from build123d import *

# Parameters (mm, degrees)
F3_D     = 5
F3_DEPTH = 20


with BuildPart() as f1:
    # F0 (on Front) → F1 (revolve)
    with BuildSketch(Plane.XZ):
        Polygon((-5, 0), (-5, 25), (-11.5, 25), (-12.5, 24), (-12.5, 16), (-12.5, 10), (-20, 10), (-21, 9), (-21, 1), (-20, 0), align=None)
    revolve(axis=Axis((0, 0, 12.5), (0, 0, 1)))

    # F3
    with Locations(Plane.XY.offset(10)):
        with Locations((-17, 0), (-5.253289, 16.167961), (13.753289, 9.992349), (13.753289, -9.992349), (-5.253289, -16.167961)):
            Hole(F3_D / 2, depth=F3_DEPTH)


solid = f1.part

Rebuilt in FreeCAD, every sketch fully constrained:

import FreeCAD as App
import Part
import Sketcher

doc = App.newDocument("Part")
body = doc.addObject("PartDesign::Body", "Body")

# Sketch on XZ plane
sketch1 = body.newObject("Sketcher::SketchObject", "Sketch")
sketch1.AttachmentSupport = (doc.getObject("XZ_Plane"), [""])
sketch1.MapMode = "FlatFace"
sketch1.addGeometry(Part.LineSegment(App.Vector(-5, 0, 0), App.Vector(-5, 25, 0)), False)
sketch1.addGeometry(Part.LineSegment(App.Vector(-5, 25, 0), App.Vector(-11.5, 25, 0)), False)
sketch1.addGeometry(Part.LineSegment(App.Vector(-11.5, 25, 0), App.Vector(-12.5, 24, 0)), False)
sketch1.addGeometry(Part.LineSegment(App.Vector(-12.5, 24, 0), App.Vector(-12.5, 10, 0)), False)
sketch1.addGeometry(Part.LineSegment(App.Vector(-12.5, 10, 0), App.Vector(-20, 10, 0)), False)
sketch1.addGeometry(Part.LineSegment(App.Vector(-20, 10, 0), App.Vector(-21, 9, 0)), False)
sketch1.addGeometry(Part.LineSegment(App.Vector(-21, 9, 0), App.Vector(-21, 1, 0)), False)
sketch1.addGeometry(Part.LineSegment(App.Vector(-21, 1, 0), App.Vector(-20, 0, 0)), False)
sketch1.addGeometry(Part.LineSegment(App.Vector(-20, 0, 0), App.Vector(-5, 0, 0)), False)
sketch1.addConstraint(Sketcher.Constraint("Coincident", 0, 2, 1, 1))
sketch1.addConstraint(Sketcher.Constraint("Coincident", 1, 2, 2, 1))
sketch1.addConstraint(Sketcher.Constraint("Coincident", 2, 2, 3, 1))
sketch1.addConstraint(Sketcher.Constraint("Coincident", 3, 2, 4, 1))
sketch1.addConstraint(Sketcher.Constraint("Coincident", 4, 2, 5, 1))
sketch1.addConstraint(Sketcher.Constraint("Coincident", 5, 2, 6, 1))
sketch1.addConstraint(Sketcher.Constraint("Coincident", 6, 2, 7, 1))
sketch1.addConstraint(Sketcher.Constraint("Coincident", 7, 2, 8, 1))
sketch1.addConstraint(Sketcher.Constraint("Coincident", 8, 2, 0, 1))
sketch1.addConstraint(Sketcher.Constraint("Vertical", 0))
sketch1.addConstraint(Sketcher.Constraint("Horizontal", 1))
sketch1.addConstraint(Sketcher.Constraint("Vertical", 3))
sketch1.addConstraint(Sketcher.Constraint("Horizontal", 4))
sketch1.addConstraint(Sketcher.Constraint("Vertical", 6))
sketch1.addConstraint(Sketcher.Constraint("Horizontal", 8))
sketch1.addConstraint(Sketcher.Constraint("PointOnObject", 7, 2, -1))
sketch1.addConstraint(Sketcher.Constraint("Parallel", 2, 5))
sketch1.addConstraint(Sketcher.Constraint("Perpendicular", 5, 7))
sketch1.addConstraint(Sketcher.Constraint("Vertical", 4, 2, 7, 2))
sketch1.addConstraint(Sketcher.Constraint("Equal", 2, 5))
sketch1.addConstraint(Sketcher.Constraint("Equal", 5, 7))
sketch1.addConstraint(Sketcher.Constraint("DistanceX", 8, 1, 8, 2, 15.0))
sketch1.addConstraint(Sketcher.Constraint("DistanceY", 0, 1, 0, 2, 25.0))
sketch1.addConstraint(Sketcher.Constraint("DistanceY", 3, 2, 3, 1, 14.0))
sketch1.addConstraint(Sketcher.Constraint("DistanceY", 6, 2, 6, 1, 8.0))
sketch1.addConstraint(Sketcher.Constraint("DistanceX", 1, 2, 1, 1, 6.5))
sketch1.addConstraint(Sketcher.Constraint("DistanceX", 0, 2, -1, 1, 5.0))
revolution = body.newObject("PartDesign::Revolution", "Revolution")
revolution.Profile = sketch1
revolution.ReferenceAxis = (sketch1, ["V_Axis"])
revolution.Angle = 360

# Sketch on XY plane
sketch2 = body.newObject("Sketcher::SketchObject", "Sketch001")
sketch2.AttachmentSupport = (doc.getObject("XY_Plane"), [""])
sketch2.MapMode = "FlatFace"
sketch2.AttachmentOffset = App.Placement(App.Vector(0, 0, 10), App.Rotation())
sketch2.addGeometry(Part.Circle(App.Vector(-17, 0, 0), App.Vector(0, 0, 1), 2.5), False)
sketch2.addGeometry(Part.Circle(App.Vector(-5.3, 16.2, 0), App.Vector(0, 0, 1), 2.5), False)
sketch2.addGeometry(Part.Circle(App.Vector(13.8, 10, 0), App.Vector(0, 0, 1), 2.5), False)
sketch2.addGeometry(Part.Circle(App.Vector(13.8, -10, 0), App.Vector(0, 0, 1), 2.5), False)
sketch2.addGeometry(Part.Circle(App.Vector(-5.3, -16.2, 0), App.Vector(0, 0, 1), 2.5), False)
sketch2.addConstraint(Sketcher.Constraint("Equal", 0, 1))
sketch2.addConstraint(Sketcher.Constraint("Equal", 1, 2))
sketch2.addConstraint(Sketcher.Constraint("Equal", 2, 3))
sketch2.addConstraint(Sketcher.Constraint("Equal", 3, 4))
sketch2.addConstraint(Sketcher.Constraint("Symmetric", 2, 3, 3, 3, -1))
sketch2.addConstraint(Sketcher.Constraint("Symmetric", 1, 3, 4, 3, -1))
sketch2.addConstraint(Sketcher.Constraint("PointOnObject", 0, 3, -1))
sketch2.addConstraint(Sketcher.Constraint("Diameter", 0, 5.0))
sketch2.addConstraint(Sketcher.Constraint("DistanceX", 0, 3, -1, 1, 17.0))
sketch2.addConstraint(Sketcher.Constraint("DistanceY", 3, 3, 2, 3, 19.984698))
sketch2.addConstraint(Sketcher.Constraint("DistanceX", 1, 3, -1, 1, 5.253289))
sketch2.addConstraint(Sketcher.Constraint("DistanceY", -1, 1, 1, 3, 16.167961))
sketch2.addConstraint(Sketcher.Constraint("DistanceX", -1, 1, 2, 3, 13.753289))
doc.recompute()
hole = body.newObject("PartDesign::Hole", "Hole")
hole.Profile = sketch2
hole.ThreadType = "None"
hole.Diameter = 5
hole.DepthType = "Dimension"
hole.Depth = 20
hole.DrillPoint = "Flat"

doc.recompute()
